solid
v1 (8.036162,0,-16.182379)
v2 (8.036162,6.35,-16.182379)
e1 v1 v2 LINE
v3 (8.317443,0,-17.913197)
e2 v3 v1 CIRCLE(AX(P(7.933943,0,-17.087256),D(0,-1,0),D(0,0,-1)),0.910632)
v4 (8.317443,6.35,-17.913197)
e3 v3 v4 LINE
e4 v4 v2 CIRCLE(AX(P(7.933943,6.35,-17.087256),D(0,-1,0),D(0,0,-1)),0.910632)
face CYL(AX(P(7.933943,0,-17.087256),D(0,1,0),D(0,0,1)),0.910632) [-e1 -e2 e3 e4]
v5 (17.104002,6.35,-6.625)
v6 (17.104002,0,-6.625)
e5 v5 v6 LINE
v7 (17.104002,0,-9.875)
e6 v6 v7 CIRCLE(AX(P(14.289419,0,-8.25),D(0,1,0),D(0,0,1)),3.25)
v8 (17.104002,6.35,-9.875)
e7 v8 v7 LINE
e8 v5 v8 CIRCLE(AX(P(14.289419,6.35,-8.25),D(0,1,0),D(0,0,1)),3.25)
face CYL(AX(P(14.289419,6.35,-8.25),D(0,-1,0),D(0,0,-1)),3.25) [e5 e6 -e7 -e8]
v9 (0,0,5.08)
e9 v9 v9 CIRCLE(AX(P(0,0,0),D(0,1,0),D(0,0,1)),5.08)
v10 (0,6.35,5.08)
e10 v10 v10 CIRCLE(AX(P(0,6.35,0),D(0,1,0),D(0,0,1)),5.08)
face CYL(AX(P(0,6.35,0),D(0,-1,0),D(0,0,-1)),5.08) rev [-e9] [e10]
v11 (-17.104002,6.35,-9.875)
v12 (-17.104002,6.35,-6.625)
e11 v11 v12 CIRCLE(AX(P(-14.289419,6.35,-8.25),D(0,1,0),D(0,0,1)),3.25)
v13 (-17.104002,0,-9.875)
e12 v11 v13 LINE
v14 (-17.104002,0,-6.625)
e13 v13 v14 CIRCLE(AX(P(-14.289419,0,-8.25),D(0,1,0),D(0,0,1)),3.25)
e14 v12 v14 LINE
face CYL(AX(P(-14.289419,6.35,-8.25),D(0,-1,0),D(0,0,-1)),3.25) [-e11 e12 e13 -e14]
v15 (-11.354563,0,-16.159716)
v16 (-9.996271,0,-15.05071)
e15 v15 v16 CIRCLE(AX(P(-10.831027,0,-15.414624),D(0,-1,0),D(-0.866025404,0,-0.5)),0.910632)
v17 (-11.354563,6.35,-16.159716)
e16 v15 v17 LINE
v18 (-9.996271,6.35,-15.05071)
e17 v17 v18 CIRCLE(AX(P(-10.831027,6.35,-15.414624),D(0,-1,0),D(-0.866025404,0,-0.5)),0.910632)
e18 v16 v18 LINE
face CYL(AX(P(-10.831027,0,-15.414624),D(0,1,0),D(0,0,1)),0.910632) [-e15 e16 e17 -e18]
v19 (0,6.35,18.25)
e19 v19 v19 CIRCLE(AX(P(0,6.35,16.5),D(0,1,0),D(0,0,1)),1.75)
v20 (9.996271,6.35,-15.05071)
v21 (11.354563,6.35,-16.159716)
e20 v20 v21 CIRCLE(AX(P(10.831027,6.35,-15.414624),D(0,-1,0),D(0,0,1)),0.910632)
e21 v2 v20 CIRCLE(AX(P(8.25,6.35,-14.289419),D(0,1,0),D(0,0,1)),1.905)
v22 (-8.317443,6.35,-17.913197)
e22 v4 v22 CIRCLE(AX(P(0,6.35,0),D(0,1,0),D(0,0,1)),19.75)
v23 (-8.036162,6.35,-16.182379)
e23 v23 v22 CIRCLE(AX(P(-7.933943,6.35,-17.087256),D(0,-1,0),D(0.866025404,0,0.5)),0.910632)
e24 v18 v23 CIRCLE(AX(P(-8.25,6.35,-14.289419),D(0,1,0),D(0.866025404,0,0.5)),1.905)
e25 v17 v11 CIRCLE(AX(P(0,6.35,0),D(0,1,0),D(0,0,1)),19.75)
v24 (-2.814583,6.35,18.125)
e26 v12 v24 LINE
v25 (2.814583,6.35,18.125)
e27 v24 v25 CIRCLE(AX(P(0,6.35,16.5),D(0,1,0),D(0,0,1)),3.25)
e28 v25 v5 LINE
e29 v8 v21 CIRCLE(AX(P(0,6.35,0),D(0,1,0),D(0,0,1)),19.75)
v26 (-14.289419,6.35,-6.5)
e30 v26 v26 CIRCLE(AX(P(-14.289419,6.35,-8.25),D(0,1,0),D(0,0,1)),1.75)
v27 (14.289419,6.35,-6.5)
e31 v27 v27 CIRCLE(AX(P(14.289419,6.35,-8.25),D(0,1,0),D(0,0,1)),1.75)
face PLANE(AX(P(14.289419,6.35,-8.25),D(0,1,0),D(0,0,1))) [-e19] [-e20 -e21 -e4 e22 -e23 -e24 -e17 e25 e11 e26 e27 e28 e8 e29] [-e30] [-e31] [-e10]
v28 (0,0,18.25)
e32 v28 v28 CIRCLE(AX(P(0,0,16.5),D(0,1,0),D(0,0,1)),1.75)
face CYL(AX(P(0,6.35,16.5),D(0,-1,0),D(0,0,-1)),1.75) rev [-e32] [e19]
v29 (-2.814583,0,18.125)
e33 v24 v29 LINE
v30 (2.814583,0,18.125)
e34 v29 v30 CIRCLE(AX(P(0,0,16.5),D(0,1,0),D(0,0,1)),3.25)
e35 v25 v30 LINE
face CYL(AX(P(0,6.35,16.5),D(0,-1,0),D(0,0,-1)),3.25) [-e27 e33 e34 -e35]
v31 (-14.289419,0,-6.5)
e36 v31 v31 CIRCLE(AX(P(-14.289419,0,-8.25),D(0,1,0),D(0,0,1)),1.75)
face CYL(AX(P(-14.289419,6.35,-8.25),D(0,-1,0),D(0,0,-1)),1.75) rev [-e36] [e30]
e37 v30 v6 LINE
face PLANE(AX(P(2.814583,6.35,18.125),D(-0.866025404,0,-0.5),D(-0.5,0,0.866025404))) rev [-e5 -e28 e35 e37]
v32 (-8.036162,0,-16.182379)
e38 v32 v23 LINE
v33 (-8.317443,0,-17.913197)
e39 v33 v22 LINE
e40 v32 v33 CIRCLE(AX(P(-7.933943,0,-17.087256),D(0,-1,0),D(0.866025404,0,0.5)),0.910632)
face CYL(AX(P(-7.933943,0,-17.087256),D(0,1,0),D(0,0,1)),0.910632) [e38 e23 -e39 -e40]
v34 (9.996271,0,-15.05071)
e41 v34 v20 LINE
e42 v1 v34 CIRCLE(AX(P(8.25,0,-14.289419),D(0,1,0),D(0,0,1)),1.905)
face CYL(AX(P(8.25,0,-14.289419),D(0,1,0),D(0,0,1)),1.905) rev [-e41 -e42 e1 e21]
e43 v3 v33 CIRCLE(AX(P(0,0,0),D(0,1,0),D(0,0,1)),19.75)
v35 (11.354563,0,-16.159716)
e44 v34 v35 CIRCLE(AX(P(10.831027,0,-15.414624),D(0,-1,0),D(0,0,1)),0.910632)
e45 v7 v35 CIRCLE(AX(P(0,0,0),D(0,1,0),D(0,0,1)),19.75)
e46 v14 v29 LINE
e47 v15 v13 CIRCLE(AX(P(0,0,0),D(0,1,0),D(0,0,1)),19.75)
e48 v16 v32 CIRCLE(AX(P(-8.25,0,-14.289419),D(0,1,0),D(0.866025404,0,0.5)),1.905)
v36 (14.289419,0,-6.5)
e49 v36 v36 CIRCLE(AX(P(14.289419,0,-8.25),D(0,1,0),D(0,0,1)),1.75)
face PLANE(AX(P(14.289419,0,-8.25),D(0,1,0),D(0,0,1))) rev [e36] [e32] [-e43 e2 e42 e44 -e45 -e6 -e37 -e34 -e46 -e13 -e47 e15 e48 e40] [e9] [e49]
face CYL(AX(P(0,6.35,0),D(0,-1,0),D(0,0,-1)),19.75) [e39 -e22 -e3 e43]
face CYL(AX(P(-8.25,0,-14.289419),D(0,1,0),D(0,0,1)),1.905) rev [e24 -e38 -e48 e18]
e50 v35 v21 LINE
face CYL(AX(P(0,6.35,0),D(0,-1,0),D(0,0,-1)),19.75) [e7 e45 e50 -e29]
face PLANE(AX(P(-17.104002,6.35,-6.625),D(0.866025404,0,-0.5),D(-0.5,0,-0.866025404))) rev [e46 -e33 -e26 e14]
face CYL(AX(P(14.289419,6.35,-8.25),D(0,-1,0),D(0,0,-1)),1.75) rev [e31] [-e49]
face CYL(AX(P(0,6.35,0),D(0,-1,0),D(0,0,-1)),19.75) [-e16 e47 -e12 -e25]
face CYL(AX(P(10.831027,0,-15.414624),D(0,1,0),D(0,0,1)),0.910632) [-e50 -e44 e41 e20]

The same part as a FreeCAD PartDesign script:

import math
import FreeCAD as App
import Part
import Sketcher

V = App.Vector
Q = App.Units.Quantity

doc = App.newDocument("Part")
body = doc.addObject("PartDesign::Body", "Body")

sketch1 = body.newObject("Sketcher::SketchObject", "Sketch")
sketch1.AttachmentSupport = (doc.getObject("XZ_Plane"), [""])
sketch1.MapMode = "FlatFace"
sketch1.addGeometry([
    Part.LineSegment(V(-17.1, -6.6, 0), V(-2.8, 18.1, 0)),
    Part.ArcOfCircle(Part.Circle(V(0, 16.5, 0), V(0, 0, 1), 3.2), math.radians(30), math.radians(150)),
    Part.LineSegment(V(2.8, 18.1, 0), V(17.1, -6.6, 0)),
    Part.ArcOfCircle(Part.Circle(V(14.3, -8.2, 0), V(0, 0, 1), 3.3), math.radians(-30), math.radians(30)),
    Part.ArcOfCircle(Part.Circle(V(0, 0, 0), V(0, 0, 1), 19.8), math.radians(-150), math.radians(-30)),
    Part.ArcOfCircle(Part.Circle(V(-14.3, -8.2, 0), V(0, 0, 1), 3.3), math.radians(150), math.radians(210)),
    Part.Circle(V(0, 16.5, 0), V(0, 0, 1), 1.8),
    Part.Circle(V(-14.3, -8.2, 0), V(0, 0, 1), 1.8),
    Part.Circle(V(0, 0, 0), V(0, 0, 1), 5.1),
    Part.Circle(V(14.3, -8.2, 0), V(0, 0, 1), 1.8),
], False)
sketch1.addConstraint([
    Sketcher.Constraint("Tangent", 0, 2, 1, 2),
    Sketcher.Constraint("Tangent", 1, 1, 2, 1),
    Sketcher.Constraint("Tangent", 2, 2, 3, 2),
    Sketcher.Constraint("Tangent", 3, 1, 4, 2),
    Sketcher.Constraint("Tangent", 4, 1, 5, 2),
    Sketcher.Constraint("Tangent", 5, 1, 0, 1),
    Sketcher.Constraint("Coincident", 4, 3, -1, 1),
    Sketcher.Constraint("Coincident", 8, 3, -1, 1),
    Sketcher.Constraint("Coincident", 6, 3, 1, 3),
    Sketcher.Constraint("Coincident", 7, 3, 5, 3),
    Sketcher.Constraint("Coincident", 9, 3, 3, 3),
    Sketcher.Constraint("Equal", 1, 3),
    Sketcher.Constraint("Equal", 3, 5),
    Sketcher.Constraint("Equal", 6, 7),
    Sketcher.Constraint("Equal", 7, 9),
    Sketcher.Constraint("Symmetric", 0, 2, 1, 1, -2),
    Sketcher.Constraint("Vertical", 2, 2, 3, 1),
    Sketcher.Constraint("Diameter", 6, Q("3.5 mm")),
    Sketcher.Constraint("Diameter", 8, Q("10.16 mm")),
    Sketcher.Constraint("Angle", 0, Q("60 deg")),
    Sketcher.Constraint("Radius", 1, Q("3.25 mm")),
    Sketcher.Constraint("Radius", 4, Q("19.75 mm")),
])
pad1 = body.newObject("PartDesign::Pad", "Pad")
pad1.Profile = sketch1
pad1.Length = 6.35
pad1.Reversed = True

sketch2 = body.newObject("Sketcher::SketchObject", "Sketch001")
sketch2.AttachmentSupport = (doc.getObject("XZ_Plane"), [""])
sketch2.MapMode = "FlatFace"
sketch2.AttachmentOffset = App.Placement(V(0, 0, -6.35), App.Rotation())
sketch2.addGeometry([
    Part.ArcOfCircle(Part.Circle(V(8.2, -14.3, 0), V(0, 0, 1), 1.9), math.radians(-24), math.radians(264)),
    Part.ArcOfCircle(Part.Circle(V(10.8, -15.4, 0), V(0, 0, 1), 0.9), math.radians(156), math.radians(305)),
    Part.ArcOfCircle(Part.Circle(V(0, 0, 0), V(0, 0, 1), 19.7), math.radians(-65.09), math.radians(-54.91)),
    Part.ArcOfCircle(Part.Circle(V(7.9, -17.1, 0), V(0, 0, 1), 0.9), math.radians(-65), math.radians(84)),
], False)
sketch2.addConstraint([
    Sketcher.Constraint("Tangent", 0, 1, 1, 1),
    Sketcher.Constraint("Tangent", 1, 2, 2, 2),
    Sketcher.Constraint("Tangent", 2, 1, 3, 1),
    Sketcher.Constraint("Tangent", 3, 2, 0, 2),
    Sketcher.Constraint("Coincident", 2, 3, -1, 1),
    Sketcher.Constraint("Equal", 1, 3),
    Sketcher.Constraint("Radius", 2, Q("19.75 mm")),
    Sketcher.Constraint("Radius", 0, Q("1.905 mm")),
    Sketcher.Constraint("DistanceX", -1, 1, 0, 3, Q("8.25 mm")),
    Sketcher.Constraint("Radius", 1, Q("0.910632 mm")),
    Sketcher.Constraint("DistanceY", 0, 3, -1, 1, Q("14.289419 mm")),
])
pocket1 = body.newObject("PartDesign::Pocket", "Pocket")
pocket1.Profile = sketch2
pocket1.Type = "ThroughAll"
pocket1.Reversed = True
doc.recompute()

polarpattern = body.newObject("PartDesign::PolarPattern", "PolarPattern")
polarpattern.Originals = [pocket1]
polarpattern.Axis = (doc.getObject("Y_Axis"), [""])
polarpattern.Angle = 60
polarpattern.Occurrences = 2
body.Tip = polarpattern

doc.recompute()
